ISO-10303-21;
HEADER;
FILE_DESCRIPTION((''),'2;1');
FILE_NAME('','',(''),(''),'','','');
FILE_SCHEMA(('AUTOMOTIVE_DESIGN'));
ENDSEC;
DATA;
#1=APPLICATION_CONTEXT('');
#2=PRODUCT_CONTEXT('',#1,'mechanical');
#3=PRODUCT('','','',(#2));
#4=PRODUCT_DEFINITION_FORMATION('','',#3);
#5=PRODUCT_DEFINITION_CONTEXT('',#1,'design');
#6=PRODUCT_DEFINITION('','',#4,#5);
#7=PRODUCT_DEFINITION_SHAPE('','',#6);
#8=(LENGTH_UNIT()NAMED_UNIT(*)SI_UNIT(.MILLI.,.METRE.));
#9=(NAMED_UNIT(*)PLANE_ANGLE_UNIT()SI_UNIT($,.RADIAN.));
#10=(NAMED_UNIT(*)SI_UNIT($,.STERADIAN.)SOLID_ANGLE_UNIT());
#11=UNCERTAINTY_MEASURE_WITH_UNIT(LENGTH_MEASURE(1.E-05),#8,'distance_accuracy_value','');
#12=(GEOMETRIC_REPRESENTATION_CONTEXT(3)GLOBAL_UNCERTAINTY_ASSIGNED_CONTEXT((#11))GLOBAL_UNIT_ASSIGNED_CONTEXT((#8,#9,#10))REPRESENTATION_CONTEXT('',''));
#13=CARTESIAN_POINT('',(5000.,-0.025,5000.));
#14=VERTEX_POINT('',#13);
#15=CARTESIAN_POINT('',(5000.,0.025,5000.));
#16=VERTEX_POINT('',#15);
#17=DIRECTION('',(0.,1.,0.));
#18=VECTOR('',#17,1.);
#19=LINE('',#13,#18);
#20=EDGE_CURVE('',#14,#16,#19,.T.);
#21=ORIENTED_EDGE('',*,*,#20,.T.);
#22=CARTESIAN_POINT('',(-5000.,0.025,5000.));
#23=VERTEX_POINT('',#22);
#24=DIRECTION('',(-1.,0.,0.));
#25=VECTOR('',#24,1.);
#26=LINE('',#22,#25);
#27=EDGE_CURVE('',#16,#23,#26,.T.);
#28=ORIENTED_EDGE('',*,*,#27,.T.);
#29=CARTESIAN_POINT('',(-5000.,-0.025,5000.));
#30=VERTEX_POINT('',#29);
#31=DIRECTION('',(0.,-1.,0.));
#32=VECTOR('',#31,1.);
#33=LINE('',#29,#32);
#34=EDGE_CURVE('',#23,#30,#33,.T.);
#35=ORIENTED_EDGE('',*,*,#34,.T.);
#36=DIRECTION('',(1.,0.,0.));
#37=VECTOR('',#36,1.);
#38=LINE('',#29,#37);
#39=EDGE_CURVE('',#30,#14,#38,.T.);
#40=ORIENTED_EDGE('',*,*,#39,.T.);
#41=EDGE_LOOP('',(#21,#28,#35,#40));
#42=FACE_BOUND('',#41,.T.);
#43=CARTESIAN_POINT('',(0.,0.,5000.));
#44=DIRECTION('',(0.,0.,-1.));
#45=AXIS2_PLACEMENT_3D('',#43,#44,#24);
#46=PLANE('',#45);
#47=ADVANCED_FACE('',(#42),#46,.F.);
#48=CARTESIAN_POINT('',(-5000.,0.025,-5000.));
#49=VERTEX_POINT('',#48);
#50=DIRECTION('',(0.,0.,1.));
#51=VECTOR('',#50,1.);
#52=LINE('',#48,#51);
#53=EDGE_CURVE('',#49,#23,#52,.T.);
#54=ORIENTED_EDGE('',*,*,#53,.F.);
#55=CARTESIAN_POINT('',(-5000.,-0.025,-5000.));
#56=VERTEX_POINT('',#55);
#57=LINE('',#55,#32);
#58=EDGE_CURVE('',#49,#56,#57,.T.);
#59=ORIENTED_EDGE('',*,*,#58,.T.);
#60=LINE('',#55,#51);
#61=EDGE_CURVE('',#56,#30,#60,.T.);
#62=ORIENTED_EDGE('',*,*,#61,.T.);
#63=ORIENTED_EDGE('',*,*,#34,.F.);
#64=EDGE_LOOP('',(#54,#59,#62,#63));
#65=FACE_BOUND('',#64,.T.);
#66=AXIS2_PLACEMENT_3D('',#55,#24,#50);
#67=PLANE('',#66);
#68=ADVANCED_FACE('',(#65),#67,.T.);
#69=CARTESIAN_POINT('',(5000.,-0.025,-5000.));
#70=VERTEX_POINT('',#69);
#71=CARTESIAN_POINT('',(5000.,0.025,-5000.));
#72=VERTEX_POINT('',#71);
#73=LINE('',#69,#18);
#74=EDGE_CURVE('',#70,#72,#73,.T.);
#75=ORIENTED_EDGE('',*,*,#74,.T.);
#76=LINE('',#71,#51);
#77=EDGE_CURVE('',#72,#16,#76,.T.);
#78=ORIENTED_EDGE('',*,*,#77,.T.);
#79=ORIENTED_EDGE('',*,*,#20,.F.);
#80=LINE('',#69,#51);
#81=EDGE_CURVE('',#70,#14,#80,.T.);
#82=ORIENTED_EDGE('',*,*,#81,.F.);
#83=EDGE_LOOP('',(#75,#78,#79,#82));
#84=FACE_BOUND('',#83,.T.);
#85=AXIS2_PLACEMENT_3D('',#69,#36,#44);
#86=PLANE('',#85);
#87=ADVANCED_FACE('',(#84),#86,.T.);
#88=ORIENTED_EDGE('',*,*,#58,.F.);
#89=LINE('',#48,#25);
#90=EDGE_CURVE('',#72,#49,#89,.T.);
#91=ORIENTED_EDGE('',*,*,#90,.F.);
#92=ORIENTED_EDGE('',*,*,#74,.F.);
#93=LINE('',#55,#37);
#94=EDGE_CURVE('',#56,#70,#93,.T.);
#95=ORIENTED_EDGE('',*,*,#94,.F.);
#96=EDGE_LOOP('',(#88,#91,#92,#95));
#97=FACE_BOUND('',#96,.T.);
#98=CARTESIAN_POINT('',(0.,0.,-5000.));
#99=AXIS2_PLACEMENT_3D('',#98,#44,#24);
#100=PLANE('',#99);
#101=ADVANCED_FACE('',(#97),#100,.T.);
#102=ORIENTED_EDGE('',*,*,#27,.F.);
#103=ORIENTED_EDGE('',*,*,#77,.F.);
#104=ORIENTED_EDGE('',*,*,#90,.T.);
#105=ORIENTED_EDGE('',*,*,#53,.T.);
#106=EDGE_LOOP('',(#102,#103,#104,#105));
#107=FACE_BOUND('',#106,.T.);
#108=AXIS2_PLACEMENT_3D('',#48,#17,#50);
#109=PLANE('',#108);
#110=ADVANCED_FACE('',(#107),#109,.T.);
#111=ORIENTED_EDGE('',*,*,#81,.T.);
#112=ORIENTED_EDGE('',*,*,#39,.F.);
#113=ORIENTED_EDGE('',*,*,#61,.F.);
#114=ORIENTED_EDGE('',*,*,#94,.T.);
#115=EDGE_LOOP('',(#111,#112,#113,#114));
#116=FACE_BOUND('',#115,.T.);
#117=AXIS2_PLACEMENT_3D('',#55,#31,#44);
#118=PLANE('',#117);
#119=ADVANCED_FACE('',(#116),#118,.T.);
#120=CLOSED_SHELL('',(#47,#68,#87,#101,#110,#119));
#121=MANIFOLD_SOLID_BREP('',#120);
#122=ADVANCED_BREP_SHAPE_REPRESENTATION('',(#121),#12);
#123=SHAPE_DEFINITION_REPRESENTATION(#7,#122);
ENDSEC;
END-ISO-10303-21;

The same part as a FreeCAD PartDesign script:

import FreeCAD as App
import Part
import Sketcher
Q = App.Units.Quantity

doc = App.newDocument("Part")
body = doc.addObject("PartDesign::Body", "Body")

# Sketch on XY plane
sketch1 = body.newObject("Sketcher::SketchObject", "Sketch")
sketch1.AttachmentSupport = (doc.getObject("XY_Plane"), [""])
sketch1.MapMode = "FlatFace"
sketch1.addGeometry(Part.LineSegment(App.Vector(-5000, 0.03, 0), App.Vector(-5000, -0.03, 0)), False)
sketch1.addGeometry(Part.LineSegment(App.Vector(-5000, -0.03, 0), App.Vector(5000, -0.03, 0)), False)
sketch1.addGeometry(Part.LineSegment(App.Vector(5000, -0.03, 0), App.Vector(5000, 0.03, 0)), False)
sketch1.addGeometry(Part.LineSegment(App.Vector(5000, 0.03, 0), App.Vector(-5000, 0.03, 0)), False)
sketch1.addConstraint(Sketcher.Constraint("Coincident", 0, 2, 1, 1))
sketch1.addConstraint(Sketcher.Constraint("Coincident", 1, 2, 2, 1))
sketch1.addConstraint(Sketcher.Constraint("Coincident", 2, 2, 3, 1))
sketch1.addConstraint(Sketcher.Constraint("Coincident", 3, 2, 0, 1))
sketch1.addConstraint(Sketcher.Constraint("Vertical", 0))
sketch1.addConstraint(Sketcher.Constraint("Horizontal", 1))
sketch1.addConstraint(Sketcher.Constraint("Vertical", 2))
sketch1.addConstraint(Sketcher.Constraint("Horizontal", 3))
sketch1.addConstraint(Sketcher.Constraint("Symmetric", 0, 2, 2, 2, -1, 1))
sketch1.addConstraint(Sketcher.Constraint("DistanceX", 1, 1, 1, 2, Q("10000 mm")))
sketch1.addConstraint(Sketcher.Constraint("DistanceY", 0, 2, 0, 1, Q("0.05 mm")))
pad1 = body.newObject("PartDesign::Pad", "Pad")
pad1.Profile = sketch1
pad1.Type = "TwoLengths"
pad1.Length = 5000
pad1.Length2 = 5000

doc.recompute()
